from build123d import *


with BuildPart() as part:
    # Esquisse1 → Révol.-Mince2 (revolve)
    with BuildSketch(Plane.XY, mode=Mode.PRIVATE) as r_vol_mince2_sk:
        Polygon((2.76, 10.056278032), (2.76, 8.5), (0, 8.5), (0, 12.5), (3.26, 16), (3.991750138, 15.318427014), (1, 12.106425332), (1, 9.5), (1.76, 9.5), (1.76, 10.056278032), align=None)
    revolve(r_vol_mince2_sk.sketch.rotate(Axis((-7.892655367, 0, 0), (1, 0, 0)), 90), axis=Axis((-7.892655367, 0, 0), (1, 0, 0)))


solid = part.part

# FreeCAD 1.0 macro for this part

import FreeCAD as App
import Part
import Sketcher

V = App.Vector

doc = App.newDocument("Part")
body = doc.addObject("PartDesign::Body", "Body")

# Sketch on XY plane
sketch1 = body.newObject("Sketcher::SketchObject", "Sketch")
sketch1.AttachmentSupport = (doc.getObject("XY_Plane"), [""])
sketch1.MapMode = "FlatFace"
sketch1.addGeometry([
    Part.LineSegment(V(2.8, 8.5, 0), V(2.8, 10.1, 0)),  # 0
    Part.LineSegment(V(2.8, 10.1, 0), V(1.8, 10.1, 0)),  # 1
    Part.LineSegment(V(1.8, 10.1, 0), V(1.8, 9.5, 0)),  # 2
    Part.LineSegment(V(1.8, 9.5, 0), V(1, 9.5, 0)),  # 3
    Part.LineSegment(V(1, 9.5, 0), V(1, 12.1, 0)),  # 4
    Part.LineSegment(V(1, 12.1, 0), V(4, 15.3, 0)),  # 5
    Part.LineSegment(V(4, 15.3, 0), V(3.3, 16, 0)),  # 6
    Part.LineSegment(V(3.3, 16, 0), V(0, 12.5, 0)),  # 7
    Part.LineSegment(V(0, 12.5, 0), V(0, 8.5, 0)),  # 8
    Part.LineSegment(V(0, 8.5, 0), V(2.8, 8.5, 0)),  # 9
], False)
sketch1.addConstraint([
    Sketcher.Constraint("Coincident", 0, 2, 1, 1),
    Sketcher.Constraint("Coincident", 1, 2, 2, 1),
    Sketcher.Constraint("Coincident", 2, 2, 3, 1),
    Sketcher.Constraint("Coincident", 3, 2, 4, 1),
    Sketcher.Constraint("Coincident", 4, 2, 5, 1),
    Sketcher.Constraint("Coincident", 5, 2, 6, 1),
    Sketcher.Constraint("Coincident", 6, 2, 7, 1),
    Sketcher.Constraint("Coincident", 7, 2, 8, 1),
    Sketcher.Constraint("Coincident", 8, 2, 9, 1),
    Sketcher.Constraint("Coincident", 9, 2, 0, 1),
    Sketcher.Constraint("Vertical", 0),
    Sketcher.Constraint("Horizontal", 1),
    Sketcher.Constraint("Vertical", 2),
    Sketcher.Constraint("Horizontal", 3),
    Sketcher.Constraint("Vertical", 4),
    Sketcher.Constraint("Vertical", 8),
    Sketcher.Constraint("Horizontal", 9),
    Sketcher.Constraint("PointOnObject", 7, 2, -2),
    Sketcher.Constraint("Perpendicular", 5, 6),
    Sketcher.Constraint("Perpendicular", 6, 7),
    Sketcher.Constraint("DistanceX", 1, 2, 1, 1, 1.0),
    Sketcher.Constraint("DistanceY", 8, 2, 8, 1, 4.0),
    Sketcher.Constraint("Distance", 6, 1.0),
    Sketcher.Constraint("DistanceX", -1, 1, 3, 2, 1.0),
    Sketcher.Constraint("DistanceY", -1, 1, 6, 2, 16.0),
    Sketcher.Constraint("DistanceY", 3, 2, 7, 2, 3.0),
    Sketcher.Constraint("DistanceX", 3, 2, 3, 1, 0.76),
    Sketcher.Constraint("DistanceY", -1, 1, 2, 2, 9.5),
    Sketcher.Constraint("DistanceX", 0, 2, 6, 2, 0.5),
    Sketcher.Constraint("DistanceY", 0, 1, 0, 2, 1.556278),
])
revolution = body.newObject("PartDesign::Revolution", "Revolution")
revolution.Profile = sketch1
revolution.ReferenceAxis = (sketch1, ["H_Axis"])
revolution.Angle = 360

doc.recompute()
